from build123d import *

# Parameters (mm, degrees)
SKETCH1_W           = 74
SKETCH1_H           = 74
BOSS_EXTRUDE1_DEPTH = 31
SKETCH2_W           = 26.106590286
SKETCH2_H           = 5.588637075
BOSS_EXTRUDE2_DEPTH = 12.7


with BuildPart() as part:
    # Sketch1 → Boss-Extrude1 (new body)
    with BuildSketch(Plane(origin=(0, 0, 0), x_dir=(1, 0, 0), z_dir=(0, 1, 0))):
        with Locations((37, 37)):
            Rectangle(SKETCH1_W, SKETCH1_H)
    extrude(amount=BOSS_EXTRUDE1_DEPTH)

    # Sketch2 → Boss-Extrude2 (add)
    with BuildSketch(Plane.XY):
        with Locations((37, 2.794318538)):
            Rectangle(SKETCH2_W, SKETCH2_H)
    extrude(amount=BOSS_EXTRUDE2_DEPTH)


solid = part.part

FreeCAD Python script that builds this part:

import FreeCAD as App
import Part
import Sketcher


def add_polygon(sketch, points):
    """Adds a closed chain of lines whose ends are joined by coincident constraints."""
    first, n = sketch.GeometryCount, len(points)
    for a, b in zip(points, points[1:] + points[:1]):
        sketch.addGeometry(Part.LineSegment(App.Vector(*a, 0), App.Vector(*b, 0)), False)
    for i in range(n):
        sketch.addConstraint(Sketcher.Constraint("Coincident", first + i, 2, first + (i + 1) % n, 1))

doc = App.newDocument("Part")
body = doc.addObject("PartDesign::Body", "Body")

# Sketch on XZ plane
sketch1 = body.newObject("Sketcher::SketchObject", "Sketch")
sketch1.AttachmentSupport = (doc.getObject("XZ_Plane"), [""])
sketch1.MapMode = "FlatFace"
add_polygon(sketch1, [(0, -74), (0, 0), (74, 0), (74, -74)])  # lines 0-3
sketch1.addConstraint(Sketcher.Constraint("Vertical", 0))
sketch1.addConstraint(Sketcher.Constraint("Horizontal", 1))
sketch1.addConstraint(Sketcher.Constraint("Vertical", 2))
sketch1.addConstraint(Sketcher.Constraint("Horizontal", 3))
sketch1.addConstraint(Sketcher.Constraint("Coincident", 0, 2, -1, 1))
sketch1.addConstraint(Sketcher.Constraint("Equal", 3, 0))
sketch1.addConstraint(Sketcher.Constraint("DistanceX", 1, 1, 1, 2, 74.0))
pad1 = body.newObject("PartDesign::Pad", "Pad")
pad1.Profile = sketch1
pad1.Length = 31
pad1.Reversed = True

# Sketch on XY plane
sketch2 = body.newObject("Sketcher::SketchObject", "Sketch001")
sketch2.AttachmentSupport = (doc.getObject("XY_Plane"), [""])
sketch2.MapMode = "FlatFace"
add_polygon(sketch2, [(23.946705, 5.588637), (23.946705, 0), (50.053295, 0), (50.053295, 5.588637)])  # lines 0-3
sketch2.addConstraint(Sketcher.Constraint("Vertical", 0))
sketch2.addConstraint(Sketcher.Constraint("Horizontal", 1))
sketch2.addConstraint(Sketcher.Constraint("Vertical", 2))
sketch2.addConstraint(Sketcher.Constraint("Horizontal", 3))
sketch2.addConstraint(Sketcher.Constraint("PointOnObject", 0, 2, -1))
sketch2.addConstraint(Sketcher.Constraint("DistanceX", 1, 1, 1, 2, 26.10659))
sketch2.addConstraint(Sketcher.Constraint("DistanceY", 0, 2, 0, 1, 5.588637))
sketch2.addConstraint(Sketcher.Constraint("DistanceX", -1, 1, 0, 2, 23.946705))
pad2 = body.newObject("PartDesign::Pad", "Pad001")
pad2.Profile = sketch2
pad2.Length = 12.7

doc.recompute()
